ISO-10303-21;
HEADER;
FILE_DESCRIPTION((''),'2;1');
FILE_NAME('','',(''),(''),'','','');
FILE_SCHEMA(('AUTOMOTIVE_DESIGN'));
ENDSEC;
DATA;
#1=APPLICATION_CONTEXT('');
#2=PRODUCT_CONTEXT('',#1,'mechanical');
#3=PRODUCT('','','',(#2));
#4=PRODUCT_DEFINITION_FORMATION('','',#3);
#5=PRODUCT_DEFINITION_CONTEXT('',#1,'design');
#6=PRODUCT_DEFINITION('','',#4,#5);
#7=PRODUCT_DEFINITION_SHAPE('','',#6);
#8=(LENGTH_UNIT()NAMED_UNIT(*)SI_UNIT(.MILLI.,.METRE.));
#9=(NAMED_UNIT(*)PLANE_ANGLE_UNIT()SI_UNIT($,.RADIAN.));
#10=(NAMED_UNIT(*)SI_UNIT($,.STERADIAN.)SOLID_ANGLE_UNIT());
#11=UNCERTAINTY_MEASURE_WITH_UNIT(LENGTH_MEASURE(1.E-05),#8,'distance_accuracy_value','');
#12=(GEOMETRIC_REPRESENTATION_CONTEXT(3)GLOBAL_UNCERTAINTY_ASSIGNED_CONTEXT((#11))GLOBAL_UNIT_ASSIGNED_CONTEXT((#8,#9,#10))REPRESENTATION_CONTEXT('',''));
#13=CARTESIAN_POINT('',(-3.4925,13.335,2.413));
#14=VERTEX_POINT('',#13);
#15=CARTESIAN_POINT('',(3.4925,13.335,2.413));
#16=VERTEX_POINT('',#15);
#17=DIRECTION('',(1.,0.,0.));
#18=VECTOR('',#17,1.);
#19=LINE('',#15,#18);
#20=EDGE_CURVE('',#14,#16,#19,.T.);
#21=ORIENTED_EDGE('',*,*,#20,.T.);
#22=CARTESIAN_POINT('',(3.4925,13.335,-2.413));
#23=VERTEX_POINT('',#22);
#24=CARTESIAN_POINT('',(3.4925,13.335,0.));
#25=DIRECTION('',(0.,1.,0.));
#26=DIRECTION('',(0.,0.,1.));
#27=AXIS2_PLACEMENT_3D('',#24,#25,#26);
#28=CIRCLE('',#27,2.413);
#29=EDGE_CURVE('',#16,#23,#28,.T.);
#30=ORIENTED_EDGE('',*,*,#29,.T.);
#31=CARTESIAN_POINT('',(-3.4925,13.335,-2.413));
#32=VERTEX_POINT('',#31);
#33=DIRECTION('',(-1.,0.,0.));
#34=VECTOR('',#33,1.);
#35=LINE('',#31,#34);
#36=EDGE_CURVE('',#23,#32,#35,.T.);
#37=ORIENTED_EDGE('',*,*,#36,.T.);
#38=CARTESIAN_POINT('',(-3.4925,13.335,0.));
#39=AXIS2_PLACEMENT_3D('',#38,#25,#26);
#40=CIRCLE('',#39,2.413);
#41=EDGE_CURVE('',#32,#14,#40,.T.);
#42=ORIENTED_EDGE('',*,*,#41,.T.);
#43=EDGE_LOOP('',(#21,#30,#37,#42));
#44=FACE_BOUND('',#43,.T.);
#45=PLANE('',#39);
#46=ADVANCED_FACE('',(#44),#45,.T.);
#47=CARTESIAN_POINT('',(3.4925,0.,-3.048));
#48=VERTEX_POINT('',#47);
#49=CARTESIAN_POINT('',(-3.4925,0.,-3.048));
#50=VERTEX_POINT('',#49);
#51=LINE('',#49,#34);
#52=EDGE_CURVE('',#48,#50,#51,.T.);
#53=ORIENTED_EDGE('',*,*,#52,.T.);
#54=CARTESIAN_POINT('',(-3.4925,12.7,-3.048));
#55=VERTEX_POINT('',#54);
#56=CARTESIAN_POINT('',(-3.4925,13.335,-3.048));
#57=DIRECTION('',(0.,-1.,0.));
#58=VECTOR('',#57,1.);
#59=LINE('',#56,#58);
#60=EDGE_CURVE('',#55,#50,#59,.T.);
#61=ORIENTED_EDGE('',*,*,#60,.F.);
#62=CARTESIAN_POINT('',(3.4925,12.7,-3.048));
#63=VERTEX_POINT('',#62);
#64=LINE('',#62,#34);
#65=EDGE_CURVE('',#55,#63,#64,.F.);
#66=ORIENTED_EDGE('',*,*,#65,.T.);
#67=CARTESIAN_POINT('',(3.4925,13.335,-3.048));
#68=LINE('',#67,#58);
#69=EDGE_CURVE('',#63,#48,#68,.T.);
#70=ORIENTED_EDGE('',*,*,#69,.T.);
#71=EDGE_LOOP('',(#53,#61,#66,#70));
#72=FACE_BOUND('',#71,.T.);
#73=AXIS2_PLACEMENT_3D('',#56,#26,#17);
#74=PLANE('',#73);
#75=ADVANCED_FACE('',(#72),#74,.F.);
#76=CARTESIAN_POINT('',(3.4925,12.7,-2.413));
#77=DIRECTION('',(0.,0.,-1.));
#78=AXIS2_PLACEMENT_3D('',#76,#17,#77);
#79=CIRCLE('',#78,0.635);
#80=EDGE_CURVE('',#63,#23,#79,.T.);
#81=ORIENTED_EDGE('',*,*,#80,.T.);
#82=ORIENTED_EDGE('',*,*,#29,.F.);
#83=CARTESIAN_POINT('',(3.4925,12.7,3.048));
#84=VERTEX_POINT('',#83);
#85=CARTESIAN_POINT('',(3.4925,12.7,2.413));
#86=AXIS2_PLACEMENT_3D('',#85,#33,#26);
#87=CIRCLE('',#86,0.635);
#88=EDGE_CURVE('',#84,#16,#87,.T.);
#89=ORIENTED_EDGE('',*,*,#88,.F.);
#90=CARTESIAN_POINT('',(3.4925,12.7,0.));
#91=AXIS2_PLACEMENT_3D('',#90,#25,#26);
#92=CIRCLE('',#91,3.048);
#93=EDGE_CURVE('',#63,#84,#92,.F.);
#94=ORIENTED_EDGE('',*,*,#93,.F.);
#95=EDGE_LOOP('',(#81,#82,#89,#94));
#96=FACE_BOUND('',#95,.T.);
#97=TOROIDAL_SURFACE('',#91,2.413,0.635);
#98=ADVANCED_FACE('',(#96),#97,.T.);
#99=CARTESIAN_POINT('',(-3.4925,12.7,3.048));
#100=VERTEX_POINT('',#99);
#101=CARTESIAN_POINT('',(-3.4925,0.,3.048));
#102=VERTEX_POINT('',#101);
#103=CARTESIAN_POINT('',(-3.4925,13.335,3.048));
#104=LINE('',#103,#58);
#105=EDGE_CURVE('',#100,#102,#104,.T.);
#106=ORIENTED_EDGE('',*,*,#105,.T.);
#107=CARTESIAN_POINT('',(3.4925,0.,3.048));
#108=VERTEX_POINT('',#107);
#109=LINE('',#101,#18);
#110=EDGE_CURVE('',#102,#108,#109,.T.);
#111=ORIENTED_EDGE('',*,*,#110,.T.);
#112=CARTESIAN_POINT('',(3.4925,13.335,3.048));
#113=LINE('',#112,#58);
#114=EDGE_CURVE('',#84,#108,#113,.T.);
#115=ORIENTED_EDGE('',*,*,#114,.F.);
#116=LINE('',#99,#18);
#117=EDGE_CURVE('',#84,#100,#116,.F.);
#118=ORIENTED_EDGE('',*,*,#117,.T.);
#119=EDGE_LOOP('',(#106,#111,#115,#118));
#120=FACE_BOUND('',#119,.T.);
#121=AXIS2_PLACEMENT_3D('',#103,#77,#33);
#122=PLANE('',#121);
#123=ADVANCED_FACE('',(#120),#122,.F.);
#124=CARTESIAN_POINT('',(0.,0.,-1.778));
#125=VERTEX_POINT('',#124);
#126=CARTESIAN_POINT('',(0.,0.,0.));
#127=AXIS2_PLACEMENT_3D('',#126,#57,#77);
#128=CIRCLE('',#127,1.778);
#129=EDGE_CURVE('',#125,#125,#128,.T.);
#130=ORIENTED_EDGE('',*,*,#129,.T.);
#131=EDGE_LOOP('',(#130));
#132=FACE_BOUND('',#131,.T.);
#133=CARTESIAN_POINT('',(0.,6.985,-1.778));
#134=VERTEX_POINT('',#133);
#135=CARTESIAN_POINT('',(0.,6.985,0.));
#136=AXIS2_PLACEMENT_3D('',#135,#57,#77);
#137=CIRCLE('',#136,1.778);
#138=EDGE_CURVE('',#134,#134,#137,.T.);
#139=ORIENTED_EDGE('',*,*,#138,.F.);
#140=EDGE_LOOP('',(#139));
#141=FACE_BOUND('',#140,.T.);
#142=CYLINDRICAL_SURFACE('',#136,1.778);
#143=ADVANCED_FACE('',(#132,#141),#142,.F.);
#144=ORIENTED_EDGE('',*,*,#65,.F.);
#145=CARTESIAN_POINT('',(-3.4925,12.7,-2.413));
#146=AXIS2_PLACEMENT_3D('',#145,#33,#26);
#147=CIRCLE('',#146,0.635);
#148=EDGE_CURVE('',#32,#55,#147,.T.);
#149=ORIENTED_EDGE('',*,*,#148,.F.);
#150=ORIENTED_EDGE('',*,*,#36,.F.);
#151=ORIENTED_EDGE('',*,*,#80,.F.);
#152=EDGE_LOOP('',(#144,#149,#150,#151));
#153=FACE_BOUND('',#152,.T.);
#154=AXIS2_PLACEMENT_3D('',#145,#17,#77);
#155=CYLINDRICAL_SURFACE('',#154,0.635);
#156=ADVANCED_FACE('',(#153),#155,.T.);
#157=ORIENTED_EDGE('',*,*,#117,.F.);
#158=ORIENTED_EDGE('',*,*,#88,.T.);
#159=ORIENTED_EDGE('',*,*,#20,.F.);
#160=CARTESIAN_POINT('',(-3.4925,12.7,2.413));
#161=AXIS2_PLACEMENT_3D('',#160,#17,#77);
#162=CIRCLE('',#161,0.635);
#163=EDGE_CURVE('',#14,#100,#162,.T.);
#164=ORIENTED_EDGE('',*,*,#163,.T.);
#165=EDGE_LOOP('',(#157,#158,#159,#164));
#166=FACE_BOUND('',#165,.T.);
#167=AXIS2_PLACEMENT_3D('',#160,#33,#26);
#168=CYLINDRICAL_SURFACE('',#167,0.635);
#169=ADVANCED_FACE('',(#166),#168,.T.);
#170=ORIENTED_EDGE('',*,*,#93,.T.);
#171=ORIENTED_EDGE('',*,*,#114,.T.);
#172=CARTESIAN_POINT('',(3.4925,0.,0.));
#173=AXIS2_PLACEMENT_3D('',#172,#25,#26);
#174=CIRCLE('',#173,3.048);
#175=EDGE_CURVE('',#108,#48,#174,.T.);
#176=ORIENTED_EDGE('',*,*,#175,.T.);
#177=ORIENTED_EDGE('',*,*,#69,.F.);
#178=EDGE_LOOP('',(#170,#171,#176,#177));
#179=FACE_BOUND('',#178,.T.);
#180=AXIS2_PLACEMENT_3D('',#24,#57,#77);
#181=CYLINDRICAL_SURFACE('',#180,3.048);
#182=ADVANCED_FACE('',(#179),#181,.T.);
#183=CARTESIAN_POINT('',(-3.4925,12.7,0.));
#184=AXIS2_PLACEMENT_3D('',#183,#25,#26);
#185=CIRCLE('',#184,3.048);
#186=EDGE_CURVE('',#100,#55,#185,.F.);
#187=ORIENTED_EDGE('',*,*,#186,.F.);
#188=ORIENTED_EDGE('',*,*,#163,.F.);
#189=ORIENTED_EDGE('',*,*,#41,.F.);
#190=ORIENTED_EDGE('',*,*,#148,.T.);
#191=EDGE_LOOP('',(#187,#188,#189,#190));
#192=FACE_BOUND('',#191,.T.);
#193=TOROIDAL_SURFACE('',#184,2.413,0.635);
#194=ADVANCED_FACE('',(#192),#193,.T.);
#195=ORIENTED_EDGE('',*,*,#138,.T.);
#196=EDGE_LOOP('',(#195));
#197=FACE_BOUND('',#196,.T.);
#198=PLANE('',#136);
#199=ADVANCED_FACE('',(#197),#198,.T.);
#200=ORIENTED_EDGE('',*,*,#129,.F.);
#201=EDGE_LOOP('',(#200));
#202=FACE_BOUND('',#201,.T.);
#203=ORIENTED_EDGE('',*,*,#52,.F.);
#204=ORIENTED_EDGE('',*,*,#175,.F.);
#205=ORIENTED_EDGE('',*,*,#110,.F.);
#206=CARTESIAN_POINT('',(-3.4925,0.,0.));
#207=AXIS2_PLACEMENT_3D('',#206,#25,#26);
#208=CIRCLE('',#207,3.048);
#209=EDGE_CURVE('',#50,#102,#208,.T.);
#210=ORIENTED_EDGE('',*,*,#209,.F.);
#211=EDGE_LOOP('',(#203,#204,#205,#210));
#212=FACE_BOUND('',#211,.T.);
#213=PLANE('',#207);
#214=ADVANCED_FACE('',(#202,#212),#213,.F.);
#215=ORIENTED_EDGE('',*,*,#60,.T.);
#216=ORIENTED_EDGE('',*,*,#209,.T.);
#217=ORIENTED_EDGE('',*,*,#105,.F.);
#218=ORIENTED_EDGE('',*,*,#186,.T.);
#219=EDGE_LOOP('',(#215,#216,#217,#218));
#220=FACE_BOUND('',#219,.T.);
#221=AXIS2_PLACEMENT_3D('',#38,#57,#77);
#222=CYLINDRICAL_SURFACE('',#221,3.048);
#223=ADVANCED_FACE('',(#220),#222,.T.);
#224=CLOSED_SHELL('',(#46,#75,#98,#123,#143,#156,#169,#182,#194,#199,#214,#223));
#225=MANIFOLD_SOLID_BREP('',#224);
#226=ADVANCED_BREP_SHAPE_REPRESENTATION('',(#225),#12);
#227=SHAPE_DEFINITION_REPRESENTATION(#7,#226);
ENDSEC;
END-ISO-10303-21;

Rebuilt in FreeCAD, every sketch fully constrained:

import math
import FreeCAD as App
import Part
import Sketcher

V = App.Vector
Q = App.Units.Quantity


def edges_at(feature, points):
    """Names of the edges that pass closest to the given points."""
    edges = feature.Shape.Edges
    near = lambda p: min(range(len(edges)), key=lambda i: edges[i].distToShape(Part.Vertex(*p))[0])
    return sorted({f"Edge{near(p) + 1}" for p in points})

doc = App.newDocument("Part")
body = doc.addObject("PartDesign::Body", "Body")

sketch1 = body.newObject("Sketcher::SketchObject", "Sketch")
sketch1.AttachmentSupport = (doc.getObject("XZ_Plane"), [""])
sketch1.MapMode = "FlatFace"
sketch1.addGeometry([
    Part.LineSegment(V(3.5, -3, 0), V(-3.5, -3, 0)),
    Part.ArcOfCircle(Part.Circle(V(-3.5, 0, 0), V(0, 0, 1), 3), math.radians(90), math.radians(270)),
    Part.LineSegment(V(-3.5, 3, 0), V(3.5, 3, 0)),
    Part.ArcOfCircle(Part.Circle(V(3.5, 0, 0), V(0, 0, 1), 3), math.radians(-90), math.radians(90)),
], False)
sketch1.addConstraint([
    Sketcher.Constraint("Tangent", 0, 2, 1, 2),
    Sketcher.Constraint("Tangent", 1, 1, 2, 1),
    Sketcher.Constraint("Tangent", 2, 2, 3, 2),
    Sketcher.Constraint("Tangent", 3, 1, 0, 1),
    Sketcher.Constraint("Horizontal", 0),
    Sketcher.Constraint("Horizontal", 2),
    Sketcher.Constraint("Symmetric", 1, 3, 3, 3, -1, 1),
    Sketcher.Constraint("Radius", 1, Q("0.12 in")),
    Sketcher.Constraint("DistanceX", 0, 2, 0, 1, Q("0.275 in")),
])
pad1 = body.newObject("PartDesign::Pad", "Pad")
pad1.Profile = sketch1
pad1.Length = Q("0.525 in")
pad1.Reversed = True
doc.recompute()

fillet = body.newObject("PartDesign::Fillet", "Fillet")
fillet.Base = (pad1, edges_at(pad1, [
    (6.54, 13.335, 0),
    (0, 13.335, -3.048),
    (-6.54, 13.335, 0),
    (0, 13.335, 3.048),
]))
fillet.Radius = Q("0.025 in")

sketch2 = body.newObject("Sketcher::SketchObject", "Sketch001")
sketch2.AttachmentSupport = (doc.getObject("XZ_Plane"), [""])
sketch2.MapMode = "FlatFace"
sketch2.addGeometry(Part.Circle(V(0, 0, 0), V(0, 0, 1), 1.8), False)
sketch2.addConstraint([
    Sketcher.Constraint("Coincident", 0, 3, -1, 1),
    Sketcher.Constraint("Diameter", 0, Q("0.14 in")),
])
pocket1 = body.newObject("PartDesign::Pocket", "Pocket")
pocket1.Profile = sketch2
pocket1.Length = Q("0.275 in")

doc.recompute()
